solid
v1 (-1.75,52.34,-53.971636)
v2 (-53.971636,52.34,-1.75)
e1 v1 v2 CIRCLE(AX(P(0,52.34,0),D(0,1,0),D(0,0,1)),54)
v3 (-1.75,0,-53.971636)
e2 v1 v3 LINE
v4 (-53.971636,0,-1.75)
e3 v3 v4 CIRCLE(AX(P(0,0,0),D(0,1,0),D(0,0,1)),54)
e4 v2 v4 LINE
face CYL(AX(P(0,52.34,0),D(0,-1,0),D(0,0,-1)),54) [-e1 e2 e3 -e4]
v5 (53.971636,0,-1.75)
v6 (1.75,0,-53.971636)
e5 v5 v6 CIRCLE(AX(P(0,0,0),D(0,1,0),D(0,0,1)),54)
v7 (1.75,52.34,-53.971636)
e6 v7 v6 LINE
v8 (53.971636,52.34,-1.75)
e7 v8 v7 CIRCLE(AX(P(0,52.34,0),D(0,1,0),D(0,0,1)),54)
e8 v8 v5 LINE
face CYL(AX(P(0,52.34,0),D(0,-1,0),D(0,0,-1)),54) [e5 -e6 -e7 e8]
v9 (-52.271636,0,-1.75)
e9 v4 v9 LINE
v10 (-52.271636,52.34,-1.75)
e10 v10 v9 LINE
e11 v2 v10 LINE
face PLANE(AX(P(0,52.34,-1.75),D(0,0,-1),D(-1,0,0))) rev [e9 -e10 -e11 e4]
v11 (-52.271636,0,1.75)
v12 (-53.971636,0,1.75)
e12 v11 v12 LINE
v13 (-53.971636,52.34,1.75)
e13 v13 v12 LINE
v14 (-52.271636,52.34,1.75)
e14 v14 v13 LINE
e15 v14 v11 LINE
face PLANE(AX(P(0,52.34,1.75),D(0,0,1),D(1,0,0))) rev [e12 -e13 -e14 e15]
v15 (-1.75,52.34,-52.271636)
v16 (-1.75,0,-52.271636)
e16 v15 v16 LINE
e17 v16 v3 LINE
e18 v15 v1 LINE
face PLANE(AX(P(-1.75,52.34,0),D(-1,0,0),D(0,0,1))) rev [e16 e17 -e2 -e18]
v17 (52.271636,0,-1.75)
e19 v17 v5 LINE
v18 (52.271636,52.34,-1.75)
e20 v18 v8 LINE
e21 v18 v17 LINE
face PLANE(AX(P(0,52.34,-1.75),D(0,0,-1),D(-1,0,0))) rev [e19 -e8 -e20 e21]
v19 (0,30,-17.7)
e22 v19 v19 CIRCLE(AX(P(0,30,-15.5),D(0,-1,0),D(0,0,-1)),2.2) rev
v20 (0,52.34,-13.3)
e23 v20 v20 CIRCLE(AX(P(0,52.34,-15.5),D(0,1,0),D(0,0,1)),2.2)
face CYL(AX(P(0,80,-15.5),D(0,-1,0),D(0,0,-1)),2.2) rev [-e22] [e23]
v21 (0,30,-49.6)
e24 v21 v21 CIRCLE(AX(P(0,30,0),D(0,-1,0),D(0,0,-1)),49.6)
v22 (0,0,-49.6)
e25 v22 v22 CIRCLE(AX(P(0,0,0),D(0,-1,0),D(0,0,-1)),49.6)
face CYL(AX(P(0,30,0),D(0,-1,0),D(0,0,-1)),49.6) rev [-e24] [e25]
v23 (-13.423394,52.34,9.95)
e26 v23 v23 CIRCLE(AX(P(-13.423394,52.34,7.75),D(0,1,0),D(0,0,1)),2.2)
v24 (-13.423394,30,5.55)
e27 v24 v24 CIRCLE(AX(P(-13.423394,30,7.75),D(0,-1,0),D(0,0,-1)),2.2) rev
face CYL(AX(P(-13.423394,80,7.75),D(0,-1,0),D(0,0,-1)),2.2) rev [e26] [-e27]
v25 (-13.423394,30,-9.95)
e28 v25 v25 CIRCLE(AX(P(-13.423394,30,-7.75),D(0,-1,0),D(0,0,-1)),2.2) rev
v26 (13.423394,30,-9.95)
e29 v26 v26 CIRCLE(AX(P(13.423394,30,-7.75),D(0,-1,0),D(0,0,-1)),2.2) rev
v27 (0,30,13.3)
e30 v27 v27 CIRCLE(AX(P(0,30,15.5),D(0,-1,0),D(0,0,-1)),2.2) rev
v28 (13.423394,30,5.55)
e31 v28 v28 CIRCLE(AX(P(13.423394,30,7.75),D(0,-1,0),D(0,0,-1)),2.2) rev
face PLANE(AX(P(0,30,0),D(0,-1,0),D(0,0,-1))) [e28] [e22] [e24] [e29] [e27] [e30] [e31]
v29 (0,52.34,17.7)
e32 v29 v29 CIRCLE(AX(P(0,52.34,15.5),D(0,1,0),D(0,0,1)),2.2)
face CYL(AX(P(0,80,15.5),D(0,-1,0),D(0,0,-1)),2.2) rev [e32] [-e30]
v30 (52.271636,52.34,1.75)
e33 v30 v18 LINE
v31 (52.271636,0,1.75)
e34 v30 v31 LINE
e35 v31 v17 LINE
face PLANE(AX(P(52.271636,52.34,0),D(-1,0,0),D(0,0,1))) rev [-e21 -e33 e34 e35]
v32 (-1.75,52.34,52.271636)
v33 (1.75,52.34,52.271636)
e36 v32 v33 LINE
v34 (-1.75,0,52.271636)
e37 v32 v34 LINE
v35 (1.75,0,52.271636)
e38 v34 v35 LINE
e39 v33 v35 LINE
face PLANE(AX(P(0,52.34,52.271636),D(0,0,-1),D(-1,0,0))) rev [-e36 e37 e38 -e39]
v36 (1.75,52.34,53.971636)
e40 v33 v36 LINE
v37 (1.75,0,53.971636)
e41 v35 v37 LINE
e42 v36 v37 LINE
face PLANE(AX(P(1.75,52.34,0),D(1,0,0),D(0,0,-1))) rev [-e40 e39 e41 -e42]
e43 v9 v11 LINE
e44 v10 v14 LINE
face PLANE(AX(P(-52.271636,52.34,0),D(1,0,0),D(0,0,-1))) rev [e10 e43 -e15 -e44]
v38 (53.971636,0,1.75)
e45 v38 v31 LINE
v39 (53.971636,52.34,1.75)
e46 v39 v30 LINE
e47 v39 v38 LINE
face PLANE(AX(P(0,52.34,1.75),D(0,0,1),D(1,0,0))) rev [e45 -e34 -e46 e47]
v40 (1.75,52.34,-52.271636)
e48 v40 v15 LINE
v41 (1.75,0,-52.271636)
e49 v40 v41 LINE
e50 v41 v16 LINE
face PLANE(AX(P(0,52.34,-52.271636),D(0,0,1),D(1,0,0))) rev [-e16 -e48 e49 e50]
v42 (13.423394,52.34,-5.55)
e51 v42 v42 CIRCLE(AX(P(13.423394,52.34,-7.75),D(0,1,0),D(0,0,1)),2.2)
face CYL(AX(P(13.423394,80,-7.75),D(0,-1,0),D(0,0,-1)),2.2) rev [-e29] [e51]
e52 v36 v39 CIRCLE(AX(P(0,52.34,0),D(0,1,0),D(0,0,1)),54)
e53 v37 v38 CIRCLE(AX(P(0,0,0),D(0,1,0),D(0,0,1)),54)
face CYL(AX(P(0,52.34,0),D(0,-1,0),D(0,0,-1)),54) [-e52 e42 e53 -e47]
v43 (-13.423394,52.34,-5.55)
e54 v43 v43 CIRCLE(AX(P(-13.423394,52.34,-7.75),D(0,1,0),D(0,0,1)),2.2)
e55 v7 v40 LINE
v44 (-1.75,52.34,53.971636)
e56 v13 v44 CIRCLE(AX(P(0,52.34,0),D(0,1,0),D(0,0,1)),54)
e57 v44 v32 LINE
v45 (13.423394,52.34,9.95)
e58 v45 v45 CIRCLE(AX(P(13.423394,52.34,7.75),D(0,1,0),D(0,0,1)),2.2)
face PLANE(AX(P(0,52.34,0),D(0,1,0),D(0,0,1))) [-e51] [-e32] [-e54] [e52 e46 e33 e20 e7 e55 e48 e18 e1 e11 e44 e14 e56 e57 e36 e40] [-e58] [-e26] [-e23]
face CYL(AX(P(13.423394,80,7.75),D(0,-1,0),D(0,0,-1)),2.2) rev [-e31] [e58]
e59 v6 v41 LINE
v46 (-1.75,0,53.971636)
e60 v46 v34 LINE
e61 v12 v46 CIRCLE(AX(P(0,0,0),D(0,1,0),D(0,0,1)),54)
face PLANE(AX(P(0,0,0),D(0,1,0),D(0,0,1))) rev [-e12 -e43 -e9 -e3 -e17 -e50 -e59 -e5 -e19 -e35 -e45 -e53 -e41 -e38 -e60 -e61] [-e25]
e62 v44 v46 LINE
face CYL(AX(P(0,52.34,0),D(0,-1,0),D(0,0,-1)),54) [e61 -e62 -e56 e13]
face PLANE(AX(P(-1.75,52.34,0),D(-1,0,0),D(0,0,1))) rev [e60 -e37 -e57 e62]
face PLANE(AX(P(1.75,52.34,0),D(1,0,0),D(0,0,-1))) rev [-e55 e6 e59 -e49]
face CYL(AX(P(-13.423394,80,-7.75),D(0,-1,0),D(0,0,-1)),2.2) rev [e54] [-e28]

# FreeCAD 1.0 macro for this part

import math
import FreeCAD as App
import Part
import Sketcher

V = App.Vector
Q = App.Units.Quantity

doc = App.newDocument("Part")
body = doc.addObject("PartDesign::Body", "Body")

sketch1 = body.newObject("Sketcher::SketchObject", "Sketch")
sketch1.AttachmentSupport = (doc.getObject("XZ_Plane"), [""])
sketch1.MapMode = "FlatFace"
sketch1.addGeometry(Part.ArcOfCircle(Part.Circle(V(0, 0, 0), V(0, 0, 1), 54), math.radians(91.857133), math.radians(178.142867)), False)
sketch1.addGeometry(Part.LineSegment(V(-1.75, 53.971636, 0), V(-1.75, 52.271636, 0)), False)
sketch1.addGeometry(Part.LineSegment(V(-1.75, 52.271636, 0), V(1.75, 52.271636, 0)), False)
sketch1.addGeometry(Part.LineSegment(V(1.75, 52.271636, 0), V(1.75, 53.971636, 0)), False)
sketch1.addGeometry(Part.ArcOfCircle(Part.Circle(V(0, 0, 0), V(0, 0, 1), 54), math.radians(1.857133), math.radians(88.142867)), False)
sketch1.addGeometry(Part.LineSegment(V(53.971636, 1.75, 0), V(52.271636, 1.75, 0)), False)
sketch1.addGeometry(Part.LineSegment(V(52.271636, 1.75, 0), V(52.271636, -1.75, 0)), False)
sketch1.addGeometry(Part.LineSegment(V(52.271636, -1.75, 0), V(53.971636, -1.75, 0)), False)
sketch1.addGeometry(Part.ArcOfCircle(Part.Circle(V(0, 0, 0), V(0, 0, 1), 54), math.radians(-88.142867), math.radians(-1.857133)), False)
sketch1.addGeometry(Part.LineSegment(V(1.75, -53.971636, 0), V(1.75, -52.271636, 0)), False)
sketch1.addGeometry(Part.LineSegment(V(1.75, -52.271636, 0), V(-1.75, -52.271636, 0)), False)
sketch1.addGeometry(Part.LineSegment(V(-1.75, -52.271636, 0), V(-1.75, -53.971636, 0)), False)
sketch1.addGeometry(Part.ArcOfCircle(Part.Circle(V(0, 0, 0), V(0, 0, 1), 54), math.radians(-178.142867), math.radians(-91.857133)), False)
sketch1.addGeometry(Part.LineSegment(V(-53.971636, -1.75, 0), V(-52.271636, -1.75, 0)), False)
sketch1.addGeometry(Part.LineSegment(V(-52.271636, -1.75, 0), V(-52.271636, 1.75, 0)), False)
sketch1.addGeometry(Part.LineSegment(V(-52.271636, 1.75, 0), V(-53.971636, 1.75, 0)), False)
sketch1.addConstraint(Sketcher.Constraint("Coincident", 0, 1, 1, 1))
sketch1.addConstraint(Sketcher.Constraint("Coincident", 1, 2, 2, 1))
sketch1.addConstraint(Sketcher.Constraint("Coincident", 2, 2, 3, 1))
sketch1.addConstraint(Sketcher.Constraint("Coincident", 3, 2, 4, 2))
sketch1.addConstraint(Sketcher.Constraint("Coincident", 4, 1, 5, 1))
sketch1.addConstraint(Sketcher.Constraint("Coincident", 5, 2, 6, 1))
sketch1.addConstraint(Sketcher.Constraint("Coincident", 6, 2, 7, 1))
sketch1.addConstraint(Sketcher.Constraint("Coincident", 7, 2, 8, 2))
sketch1.addConstraint(Sketcher.Constraint("Coincident", 8, 1, 9, 1))
sketch1.addConstraint(Sketcher.Constraint("Coincident", 9, 2, 10, 1))
sketch1.addConstraint(Sketcher.Constraint("Coincident", 10, 2, 11, 1))
sketch1.addConstraint(Sketcher.Constraint("Coincident", 11, 2, 12, 2))
sketch1.addConstraint(Sketcher.Constraint("Coincident", 12, 1, 13, 1))
sketch1.addConstraint(Sketcher.Constraint("Coincident", 13, 2, 14, 1))
sketch1.addConstraint(Sketcher.Constraint("Coincident", 14, 2, 15, 1))
sketch1.addConstraint(Sketcher.Constraint("Coincident", 15, 2, 0, 2))
sketch1.addConstraint(Sketcher.Constraint("Vertical", 1))
sketch1.addConstraint(Sketcher.Constraint("Horizontal", 2))
sketch1.addConstraint(Sketcher.Constraint("Vertical", 3))
sketch1.addConstraint(Sketcher.Constraint("Horizontal", 5))
sketch1.addConstraint(Sketcher.Constraint("Vertical", 6))
sketch1.addConstraint(Sketcher.Constraint("Horizontal", 7))
sketch1.addConstraint(Sketcher.Constraint("Vertical", 9))
sketch1.addConstraint(Sketcher.Constraint("Horizontal", 10))
sketch1.addConstraint(Sketcher.Constraint("Vertical", 11))
sketch1.addConstraint(Sketcher.Constraint("Horizontal", 13))
sketch1.addConstraint(Sketcher.Constraint("Vertical", 14))
sketch1.addConstraint(Sketcher.Constraint("Horizontal", 15))
sketch1.addConstraint(Sketcher.Constraint("Coincident", 0, 3, -1, 1))
sketch1.addConstraint(Sketcher.Constraint("Coincident", 4, 3, -1, 1))
sketch1.addConstraint(Sketcher.Constraint("Coincident", 8, 3, -1, 1))
sketch1.addConstraint(Sketcher.Constraint("Coincident", 12, 3, -1, 1))
sketch1.addConstraint(Sketcher.Constraint("Equal", 0, 4))
sketch1.addConstraint(Sketcher.Constraint("Equal", 4, 8))
sketch1.addConstraint(Sketcher.Constraint("Equal", 8, 12))
sketch1.addConstraint(Sketcher.Constraint("Symmetric", 1, 2, 9, 2, -1, 1))
sketch1.addConstraint(Sketcher.Constraint("Symmetric", 5, 2, 13, 2, -1, 1))
sketch1.addConstraint(Sketcher.Constraint("Horizontal", 0, 1, 3, 2))
sketch1.addConstraint(Sketcher.Constraint("Horizontal", 8, 1, 11, 2))
sketch1.addConstraint(Sketcher.Constraint("Horizontal", 7, 2, 12, 1))
sketch1.addConstraint(Sketcher.Constraint("Horizontal", 5, 2, 14, 2))
sketch1.addConstraint(Sketcher.Constraint("Equal", 15, 1))
sketch1.addConstraint(Sketcher.Constraint("Equal", 10, 6))
sketch1.addConstraint(Sketcher.Constraint("Radius", 0, Q("54 mm")))
sketch1.addConstraint(Sketcher.Constraint("DistanceX", 2, 1, 2, 2, Q("3.5 mm")))
sketch1.addConstraint(Sketcher.Constraint("DistanceX", 5, 2, 5, 1, Q("1.7 mm")))
pad1 = body.newObject("PartDesign::Pad", "Pad")
pad1.Profile = sketch1
pad1.Length = 52.34
pad1.Reversed = True

sketch2 = body.newObject("Sketcher::SketchObject", "Sketch001")
sketch2.AttachmentSupport = (doc.getObject("XZ_Plane"), [""])
sketch2.MapMode = "FlatFace"
sketch2.addGeometry(Part.Circle(V(0, 15.5, 0), V(0, 0, 1), 2.2), False)
sketch2.addGeometry(Part.Circle(V(13.423394, 7.75, 0), V(0, 0, 1), 2.2), False)
sketch2.addGeometry(Part.Circle(V(13.423394, -7.75, 0), V(0, 0, 1), 2.2), False)
sketch2.addGeometry(Part.Circle(V(0, -15.5, 0), V(0, 0, 1), 2.2), False)
sketch2.addGeometry(Part.Circle(V(-13.423394, -7.75, 0), V(0, 0, 1), 2.2), False)
sketch2.addGeometry(Part.Circle(V(-13.423394, 7.75, 0), V(0, 0, 1), 2.2), False)
sketch2.addConstraint(Sketcher.Constraint("Equal", 0, 1))
sketch2.addConstraint(Sketcher.Constraint("Equal", 1, 2))
sketch2.addConstraint(Sketcher.Constraint("Equal", 2, 3))
sketch2.addConstraint(Sketcher.Constraint("Equal", 3, 4))
sketch2.addConstraint(Sketcher.Constraint("Equal", 4, 5))
sketch2.addConstraint(Sketcher.Constraint("Symmetric", 0, 3, 3, 3, -1, 1))
sketch2.addConstraint(Sketcher.Constraint("Symmetric", 1, 3, 4, 3, -1, 1))
sketch2.addConstraint(Sketcher.Constraint("Symmetric", 2, 3, 5, 3, -1, 1))
sketch2.addConstraint(Sketcher.Constraint("Symmetric", 2, 3, 4, 3, -2))
sketch2.addConstraint(Sketcher.Constraint("PointOnObject", 0, 3, -2))
sketch2.addConstraint(Sketcher.Constraint("Diameter", 0, Q("4.4 mm")))
sketch2.addConstraint(Sketcher.Constraint("DistanceY", 3, 3, 0, 3, Q("31 mm")))
sketch2.addConstraint(Sketcher.Constraint("DistanceY", 2, 3, 1, 3, Q("15.5 mm")))
sketch2.addConstraint(Sketcher.Constraint("DistanceX", -1, 1, 1, 3, Q("13.423394 mm")))
pocket1 = body.newObject("PartDesign::Pocket", "Pocket")
pocket1.Profile = sketch2
pocket1.Length = 80

sketch3 = body.newObject("Sketcher::SketchObject", "Sketch002")
sketch3.AttachmentSupport = (doc.getObject("XZ_Plane"), [""])
sketch3.MapMode = "FlatFace"
sketch3.addGeometry(Part.Circle(V(0, 0, 0), V(0, 0, 1), 49.6), False)
sketch3.addConstraint(Sketcher.Constraint("Coincident", 0, 3, -1, 1))
sketch3.addConstraint(Sketcher.Constraint("Diameter", 0, Q("99.2 mm")))
pocket2 = body.newObject("PartDesign::Pocket", "Pocket001")
pocket2.Profile = sketch3
pocket2.Length = 30

doc.recompute()
